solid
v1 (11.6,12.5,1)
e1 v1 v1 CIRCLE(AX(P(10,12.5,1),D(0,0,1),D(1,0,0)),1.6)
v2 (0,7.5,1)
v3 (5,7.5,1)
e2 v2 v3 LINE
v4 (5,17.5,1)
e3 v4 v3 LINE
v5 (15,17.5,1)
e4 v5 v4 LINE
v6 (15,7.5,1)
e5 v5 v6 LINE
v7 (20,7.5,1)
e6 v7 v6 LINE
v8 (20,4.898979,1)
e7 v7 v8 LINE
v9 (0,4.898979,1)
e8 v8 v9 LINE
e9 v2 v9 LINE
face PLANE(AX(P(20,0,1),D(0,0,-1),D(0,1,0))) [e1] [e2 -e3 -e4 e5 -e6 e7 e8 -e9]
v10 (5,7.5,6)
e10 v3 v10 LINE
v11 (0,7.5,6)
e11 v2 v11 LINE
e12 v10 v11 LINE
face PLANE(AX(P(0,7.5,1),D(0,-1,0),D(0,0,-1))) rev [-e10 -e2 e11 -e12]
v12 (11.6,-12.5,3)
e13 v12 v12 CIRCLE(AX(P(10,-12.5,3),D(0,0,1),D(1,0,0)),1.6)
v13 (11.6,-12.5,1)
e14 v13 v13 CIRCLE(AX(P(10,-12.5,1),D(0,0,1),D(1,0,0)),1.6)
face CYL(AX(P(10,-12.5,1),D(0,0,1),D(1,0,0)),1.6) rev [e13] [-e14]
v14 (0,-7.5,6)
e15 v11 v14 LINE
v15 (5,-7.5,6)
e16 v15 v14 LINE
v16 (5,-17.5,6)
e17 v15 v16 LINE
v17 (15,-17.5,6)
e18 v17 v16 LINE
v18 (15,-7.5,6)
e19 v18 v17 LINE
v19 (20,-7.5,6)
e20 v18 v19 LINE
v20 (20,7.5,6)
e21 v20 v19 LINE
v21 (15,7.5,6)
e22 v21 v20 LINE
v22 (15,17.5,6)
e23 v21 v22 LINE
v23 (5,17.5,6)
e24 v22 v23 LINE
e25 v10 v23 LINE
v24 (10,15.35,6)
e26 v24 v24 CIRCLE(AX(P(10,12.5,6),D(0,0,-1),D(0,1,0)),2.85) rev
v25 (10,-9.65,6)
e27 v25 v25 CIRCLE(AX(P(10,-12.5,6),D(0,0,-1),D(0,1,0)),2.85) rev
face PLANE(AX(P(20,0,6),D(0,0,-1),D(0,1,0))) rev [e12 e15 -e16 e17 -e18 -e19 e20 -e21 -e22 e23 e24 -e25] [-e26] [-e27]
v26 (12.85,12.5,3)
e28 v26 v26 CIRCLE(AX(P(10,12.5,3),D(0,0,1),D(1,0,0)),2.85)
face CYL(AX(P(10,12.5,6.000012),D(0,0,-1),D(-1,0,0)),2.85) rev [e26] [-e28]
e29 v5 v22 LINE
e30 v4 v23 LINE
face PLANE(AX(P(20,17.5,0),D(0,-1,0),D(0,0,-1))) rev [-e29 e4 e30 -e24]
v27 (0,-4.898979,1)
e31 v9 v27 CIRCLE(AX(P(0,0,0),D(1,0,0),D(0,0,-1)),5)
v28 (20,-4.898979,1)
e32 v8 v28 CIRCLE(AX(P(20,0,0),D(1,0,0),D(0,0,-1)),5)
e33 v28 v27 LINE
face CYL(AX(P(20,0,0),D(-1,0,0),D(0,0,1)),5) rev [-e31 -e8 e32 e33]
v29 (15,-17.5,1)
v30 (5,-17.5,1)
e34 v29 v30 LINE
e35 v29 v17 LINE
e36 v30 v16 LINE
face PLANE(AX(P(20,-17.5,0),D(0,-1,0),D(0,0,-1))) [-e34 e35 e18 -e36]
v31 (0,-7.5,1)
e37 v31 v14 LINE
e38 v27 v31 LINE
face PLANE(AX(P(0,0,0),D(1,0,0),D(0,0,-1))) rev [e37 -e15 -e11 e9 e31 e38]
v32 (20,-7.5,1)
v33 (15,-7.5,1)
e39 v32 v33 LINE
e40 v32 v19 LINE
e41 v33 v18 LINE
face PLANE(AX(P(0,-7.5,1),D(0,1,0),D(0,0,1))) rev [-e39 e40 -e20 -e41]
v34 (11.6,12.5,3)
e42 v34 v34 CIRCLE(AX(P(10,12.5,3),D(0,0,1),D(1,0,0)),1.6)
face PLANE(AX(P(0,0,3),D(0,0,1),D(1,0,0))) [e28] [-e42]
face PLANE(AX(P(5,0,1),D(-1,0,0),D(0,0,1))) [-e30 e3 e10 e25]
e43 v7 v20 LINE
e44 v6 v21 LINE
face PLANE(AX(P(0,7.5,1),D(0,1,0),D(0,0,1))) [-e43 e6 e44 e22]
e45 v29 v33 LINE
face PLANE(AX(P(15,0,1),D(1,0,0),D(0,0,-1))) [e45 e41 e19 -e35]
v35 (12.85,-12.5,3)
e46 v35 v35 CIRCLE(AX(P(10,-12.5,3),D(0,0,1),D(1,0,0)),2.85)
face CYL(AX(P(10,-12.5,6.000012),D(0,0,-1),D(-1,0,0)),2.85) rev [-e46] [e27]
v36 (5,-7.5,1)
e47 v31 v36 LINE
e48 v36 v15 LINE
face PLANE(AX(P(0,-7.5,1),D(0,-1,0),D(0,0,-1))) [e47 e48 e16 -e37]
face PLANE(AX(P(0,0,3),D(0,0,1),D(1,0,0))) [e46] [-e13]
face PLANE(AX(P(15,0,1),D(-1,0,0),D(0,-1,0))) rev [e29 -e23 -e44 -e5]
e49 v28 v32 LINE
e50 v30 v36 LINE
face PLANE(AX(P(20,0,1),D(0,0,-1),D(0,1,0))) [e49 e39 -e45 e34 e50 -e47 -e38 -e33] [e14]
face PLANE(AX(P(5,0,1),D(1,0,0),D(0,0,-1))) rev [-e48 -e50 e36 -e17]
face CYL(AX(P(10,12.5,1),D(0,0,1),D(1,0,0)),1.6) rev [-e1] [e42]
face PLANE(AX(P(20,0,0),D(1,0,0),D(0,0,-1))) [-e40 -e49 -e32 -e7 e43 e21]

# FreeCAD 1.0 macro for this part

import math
import FreeCAD as App
import Part
import Sketcher


def add_polygon(sketch, points):
    """Adds a closed chain of lines whose ends are joined by coincident constraints."""
    first, n = sketch.GeometryCount, len(points)
    for a, b in zip(points, points[1:] + points[:1]):
        sketch.addGeometry(Part.LineSegment(App.Vector(*a, 0), App.Vector(*b, 0)), False)
    for i in range(n):
        sketch.addConstraint(Sketcher.Constraint("Coincident", first + i, 2, first + (i + 1) % n, 1))

doc = App.newDocument("Part")
params = doc.addObject("Spreadsheet::Sheet", "Params")
for row, (alias, value) in enumerate([
    ("sketch1_radius", "5 mm"),
    ("sketch1_width", "35 mm"),
    ("sketch1_height", "5 mm"),
    ("pad1_length", "20 mm"),
    ("sketch2_diameter", "3.2 mm"),
    ("sketch2_width", "5 mm"),
    ("sketch2_height", "10 mm"),
    ("sketch3_diameter", "5.7 mm"),
    ("sketch3_diameter2", "3.2 mm"),
    ("pocket2_length", "1 mm"),
    ("pocket2_length2", "3 mm"),
], start=1):
    params.set(f"A{row}", alias)
    params.set(f"B{row}", "=" + value)
    params.setAlias(f"B{row}", alias)

body = doc.addObject("PartDesign::Body", "Body")

sketch1 = body.newObject("Sketcher::SketchObject", "Sketch")
sketch1.AttachmentSupport = (doc.getObject("YZ_Plane"), [""])
sketch1.MapMode = "FlatFace"
sketch1.addGeometry(Part.ArcOfCircle(Part.Circle(App.Vector(0, 0, 0), App.Vector(0, 0, 1), 5), math.radians(12), math.radians(168)), False)
sketch1.addGeometry(Part.LineSegment(App.Vector(5, 1, 0), App.Vector(18, 1, 0)), False)
sketch1.addGeometry(Part.LineSegment(App.Vector(18, 1, 0), App.Vector(18, 6, 0)), False)
sketch1.addGeometry(Part.LineSegment(App.Vector(18, 6, 0), App.Vector(-18, 6, 0)), False)
sketch1.addGeometry(Part.LineSegment(App.Vector(-18, 6, 0), App.Vector(-18, 1, 0)), False)
sketch1.addGeometry(Part.LineSegment(App.Vector(-18, 1, 0), App.Vector(-5, 1, 0)), False)
sketch1.addConstraint(Sketcher.Constraint("Coincident", 0, 1, 1, 1))
sketch1.addConstraint(Sketcher.Constraint("Coincident", 1, 2, 2, 1))
sketch1.addConstraint(Sketcher.Constraint("Coincident", 2, 2, 3, 1))
sketch1.addConstraint(Sketcher.Constraint("Coincident", 3, 2, 4, 1))
sketch1.addConstraint(Sketcher.Constraint("Coincident", 4, 2, 5, 1))
sketch1.addConstraint(Sketcher.Constraint("Coincident", 5, 2, 0, 2))
sketch1.addConstraint(Sketcher.Constraint("Horizontal", 1))
sketch1.addConstraint(Sketcher.Constraint("Vertical", 2))
sketch1.addConstraint(Sketcher.Constraint("Horizontal", 3))
sketch1.addConstraint(Sketcher.Constraint("Vertical", 4))
sketch1.addConstraint(Sketcher.Constraint("Horizontal", 5))
sketch1.addConstraint(Sketcher.Constraint("Coincident", 0, 3, -1, 1))
sketch1.addConstraint(Sketcher.Constraint("Symmetric", 1, 2, 4, 2, -2))
sketch1.addConstraint(Sketcher.Constraint("Radius", 0, 5.0))
sketch1.addConstraint(Sketcher.Constraint("DistanceX", 3, 2, 3, 1, 35.0))
sketch1.addConstraint(Sketcher.Constraint("DistanceY", 2, 1, 2, 2, 5.0))
sketch1.addConstraint(Sketcher.Constraint("DistanceY", -1, 1, 0, 1, 1.0))
sketch1.setExpression("Constraints[13]", "Params.sketch1_radius")
sketch1.setExpression("Constraints[14]", "Params.sketch1_width")
sketch1.setExpression("Constraints[15]", "Params.sketch1_height")
pad1 = body.newObject("PartDesign::Pad", "Pad")
pad1.Profile = sketch1
pad1.setExpression("Length", "Params.pad1_length")

sketch2 = body.newObject("Sketcher::SketchObject", "Sketch001")
sketch2.AttachmentSupport = (doc.getObject("XY_Plane"), [""])
sketch2.MapMode = "FlatFace"
sketch2.AttachmentOffset = App.Placement(App.Vector(0, 0, 6), App.Rotation())
add_polygon(sketch2, [(0, -7.5), (0, -17.5), (5, -17.5), (5, -7.5)])
add_polygon(sketch2, [(0, 17.5), (0, 7.5), (5, 7.5), (5, 17.5)])
add_polygon(sketch2, [(15, 17.5), (15, 7.5), (20, 7.5), (20, 17.5)])
add_polygon(sketch2, [(15, -7.5), (15, -17.5), (20, -17.5), (20, -7.5)])
sketch2.addGeometry(Part.Circle(App.Vector(10, -12.5, 0), App.Vector(0, 0, 1), 1.6), False)
sketch2.addGeometry(Part.Circle(App.Vector(10, 12.5, 0), App.Vector(0, 0, 1), 1.6), False)
sketch2.addConstraint(Sketcher.Constraint("Vertical", 0))
sketch2.addConstraint(Sketcher.Constraint("Horizontal", 1))
sketch2.addConstraint(Sketcher.Constraint("Vertical", 2))
sketch2.addConstraint(Sketcher.Constraint("Horizontal", 3))
sketch2.addConstraint(Sketcher.Constraint("Vertical", 4))
sketch2.addConstraint(Sketcher.Constraint("Horizontal", 5))
sketch2.addConstraint(Sketcher.Constraint("Vertical", 6))
sketch2.addConstraint(Sketcher.Constraint("Horizontal", 7))
sketch2.addConstraint(Sketcher.Constraint("Vertical", 8))
sketch2.addConstraint(Sketcher.Constraint("Horizontal", 9))
sketch2.addConstraint(Sketcher.Constraint("Vertical", 10))
sketch2.addConstraint(Sketcher.Constraint("Horizontal", 11))
sketch2.addConstraint(Sketcher.Constraint("Vertical", 12))
sketch2.addConstraint(Sketcher.Constraint("Horizontal", 13))
sketch2.addConstraint(Sketcher.Constraint("Vertical", 14))
sketch2.addConstraint(Sketcher.Constraint("Horizontal", 15))
sketch2.addConstraint(Sketcher.Constraint("Equal", 16, 17))
sketch2.addConstraint(Sketcher.Constraint("Symmetric", 3, 2, 4, 2, -1, 1))
sketch2.addConstraint(Sketcher.Constraint("Symmetric", 16, 3, 17, 3, -1))
sketch2.addConstraint(Sketcher.Constraint("Symmetric", 1, 2, 6, 2, -1))
sketch2.addConstraint(Sketcher.Constraint("Symmetric", 11, 2, 12, 2, -1))
sketch2.addConstraint(Sketcher.Constraint("Symmetric", 9, 2, 14, 2, -1))
sketch2.addConstraint(Sketcher.Constraint("PointOnObject", 0, 2, -2))
sketch2.addConstraint(Sketcher.Constraint("Horizontal", 5, 2, 8, 2))
sketch2.addConstraint(Sketcher.Constraint("Horizontal", 7, 2, 10, 2))
sketch2.addConstraint(Sketcher.Constraint("Equal", 7, 9))
sketch2.addConstraint(Sketcher.Constraint("Diameter", 16, 3.2))
sketch2.addConstraint(Sketcher.Constraint("DistanceX", 1, 1, 1, 2, 5.0))
sketch2.addConstraint(Sketcher.Constraint("DistanceY", 0, 2, 0, 1, 10.0))
sketch2.addConstraint(Sketcher.Constraint("DistanceX", -1, 1, 16, 3, 10.0))
sketch2.addConstraint(Sketcher.Constraint("DistanceX", -1, 1, 8, 2, 15.0))
sketch2.addConstraint(Sketcher.Constraint("DistanceY", 16, 3, 17, 3, 25.0))
sketch2.addConstraint(Sketcher.Constraint("DistanceY", 0, 2, 16, 3, 5.0))
sketch2.setExpression("Constraints[42]", "Params.sketch2_diameter")
sketch2.setExpression("Constraints[43]", "Params.sketch2_width")
sketch2.setExpression("Constraints[44]", "Params.sketch2_height")
pocket1 = body.newObject("PartDesign::Pocket", "Pocket")
pocket1.Profile = sketch2
pocket1.Type = "ThroughAll"
pocket1.Midplane = True

sketch3 = body.newObject("Sketcher::SketchObject", "Sketch002")
sketch3.AttachmentSupport = (doc.getObject("XY_Plane"), [""])
sketch3.MapMode = "FlatFace"
sketch3.AttachmentOffset = App.Placement(App.Vector(0, 0, 6), App.Rotation())
sketch3.addGeometry(Part.Circle(App.Vector(10, -12.5, 0), App.Vector(0, 0, 1), 2.9), False)
sketch3.addGeometry(Part.Circle(App.Vector(10, -12.5, 0), App.Vector(0, 0, 1), 1.6), False)
sketch3.addGeometry(Part.Circle(App.Vector(10, 12.5, 0), App.Vector(0, 0, 1), 2.9), False)
sketch3.addGeometry(Part.Circle(App.Vector(10, 12.5, 0), App.Vector(0, 0, 1), 1.6), False)
sketch3.addConstraint(Sketcher.Constraint("Coincident", 1, 3, 0, 3))
sketch3.addConstraint(Sketcher.Constraint("Coincident", 3, 3, 2, 3))
sketch3.addConstraint(Sketcher.Constraint("Equal", 0, 2))
sketch3.addConstraint(Sketcher.Constraint("Equal", 1, 3))
sketch3.addConstraint(Sketcher.Constraint("Symmetric", 0, 3, 2, 3, -1))
sketch3.addConstraint(Sketcher.Constraint("Diameter", 0, 5.7))
sketch3.addConstraint(Sketcher.Constraint("Diameter", 1, 3.2))
sketch3.addConstraint(Sketcher.Constraint("DistanceX", -1, 1, 0, 3, 10.0))
sketch3.addConstraint(Sketcher.Constraint("DistanceY", 0, 3, 2, 3, 25.0))
sketch3.setExpression("Constraints[5]", "Params.sketch3_diameter")
sketch3.setExpression("Constraints[6]", "Params.sketch3_diameter2")
pocket2 = body.newObject("PartDesign::Pocket", "Pocket001")
pocket2.Profile = sketch3
pocket2.Type = "TwoLengths"
pocket2.setExpression("Length", "Params.pocket2_length")
pocket2.setExpression("Length2", "Params.pocket2_length2")
pocket2.Reversed = True

doc.recompute()
